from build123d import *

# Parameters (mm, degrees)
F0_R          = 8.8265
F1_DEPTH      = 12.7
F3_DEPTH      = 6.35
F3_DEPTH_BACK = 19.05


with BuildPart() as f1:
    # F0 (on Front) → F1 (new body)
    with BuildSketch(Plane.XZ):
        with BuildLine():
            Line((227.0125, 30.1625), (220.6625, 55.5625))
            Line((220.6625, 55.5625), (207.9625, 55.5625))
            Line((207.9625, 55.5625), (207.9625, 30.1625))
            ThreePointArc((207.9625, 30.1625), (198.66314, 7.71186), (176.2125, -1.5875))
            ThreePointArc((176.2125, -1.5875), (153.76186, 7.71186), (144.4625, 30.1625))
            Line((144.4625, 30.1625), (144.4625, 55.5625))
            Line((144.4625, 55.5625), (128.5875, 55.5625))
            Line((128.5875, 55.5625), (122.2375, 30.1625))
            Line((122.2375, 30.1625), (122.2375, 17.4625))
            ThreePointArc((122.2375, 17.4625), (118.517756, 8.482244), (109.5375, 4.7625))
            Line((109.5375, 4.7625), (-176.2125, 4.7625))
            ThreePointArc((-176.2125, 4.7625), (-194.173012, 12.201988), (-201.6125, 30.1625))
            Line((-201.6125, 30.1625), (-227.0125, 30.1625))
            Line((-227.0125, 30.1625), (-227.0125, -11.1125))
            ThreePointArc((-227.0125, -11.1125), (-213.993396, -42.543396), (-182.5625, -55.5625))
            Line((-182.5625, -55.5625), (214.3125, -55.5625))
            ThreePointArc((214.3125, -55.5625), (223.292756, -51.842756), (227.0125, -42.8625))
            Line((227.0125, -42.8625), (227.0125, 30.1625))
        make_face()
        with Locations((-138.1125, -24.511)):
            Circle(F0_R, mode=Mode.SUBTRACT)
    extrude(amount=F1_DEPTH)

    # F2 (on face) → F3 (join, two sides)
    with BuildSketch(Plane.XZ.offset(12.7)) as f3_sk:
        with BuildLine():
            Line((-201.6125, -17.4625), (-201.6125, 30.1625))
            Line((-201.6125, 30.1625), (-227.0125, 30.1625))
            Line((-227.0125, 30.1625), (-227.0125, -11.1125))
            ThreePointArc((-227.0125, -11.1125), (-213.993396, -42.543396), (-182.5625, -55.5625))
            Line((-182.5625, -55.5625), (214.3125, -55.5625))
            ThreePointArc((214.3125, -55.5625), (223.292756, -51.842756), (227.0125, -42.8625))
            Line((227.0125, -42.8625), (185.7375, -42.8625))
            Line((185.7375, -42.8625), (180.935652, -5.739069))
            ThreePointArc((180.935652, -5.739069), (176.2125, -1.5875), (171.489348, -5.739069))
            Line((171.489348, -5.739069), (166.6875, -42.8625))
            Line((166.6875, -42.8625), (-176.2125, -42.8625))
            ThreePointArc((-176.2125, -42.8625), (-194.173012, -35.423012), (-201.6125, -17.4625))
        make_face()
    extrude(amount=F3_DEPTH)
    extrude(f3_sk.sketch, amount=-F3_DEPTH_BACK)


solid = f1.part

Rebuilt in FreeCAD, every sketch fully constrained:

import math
import FreeCAD as App
import Part
import Sketcher
Q = App.Units.Quantity

doc = App.newDocument("Part")
params = doc.addObject("Spreadsheet::Sheet", "Params")
for row, (alias, value) in enumerate([
    ("sketch1_radius", "1 in"),
    ("sketch1_radius2", "0.5 in"),
    ("sketch1_width", "1 in"),
    ("sketch1_radius3", "1.25 in"),
    ("sketch1_radius4", "1.7500001 in"),
    ("pad1_length", "0.5 in"),
    ("sketch2_radius", "1 in"),
    ("sketch2_radius2", "0.5 in"),
    ("sketch2_width", "1 in"),
    ("sketch2_radius3", "1.7500001 in"),
    ("sketch2_width2", "13.5 in"),
    ("pad2_length", "0.25 in"),
    ("pad2_length2", "0.75 in"),
], start=1):
    params.set(f"A{row}", alias)
    params.set(f"B{row}", "=" + value)
    params.setAlias(f"B{row}", alias)

body = doc.addObject("PartDesign::Body", "Body")

# Sketch on XZ plane
sketch1 = body.newObject("Sketcher::SketchObject", "Sketch")
sketch1.AttachmentSupport = (doc.getObject("XZ_Plane"), [""])
sketch1.MapMode = "FlatFace"
sketch1.addGeometry([
    Part.LineSegment(App.Vector(227, 30, 0), App.Vector(221, 56, 0)),  # 0
    Part.LineSegment(App.Vector(221, 56, 0), App.Vector(208, 56, 0)),  # 1
    Part.LineSegment(App.Vector(208, 56, 0), App.Vector(208, 30, 0)),  # 2
    Part.ArcOfCircle(Part.Circle(App.Vector(176, 30, 0), App.Vector(0, 0, 1), 32), math.radians(-90), math.radians(0)),  # 3
    Part.ArcOfCircle(Part.Circle(App.Vector(176, 30, 0), App.Vector(0, 0, 1), 32), math.radians(-180), math.radians(-90)),  # 4
    Part.LineSegment(App.Vector(144, 30, 0), App.Vector(144, 56, 0)),  # 5
    Part.LineSegment(App.Vector(144, 56, 0), App.Vector(129, 56, 0)),  # 6
    Part.LineSegment(App.Vector(129, 56, 0), App.Vector(122, 30, 0)),  # 7
    Part.LineSegment(App.Vector(122, 30, 0), App.Vector(122, 17, 0)),  # 8
    Part.ArcOfCircle(Part.Circle(App.Vector(110, 17, 0), App.Vector(0, 0, 1), 13), math.radians(-90), math.radians(0)),  # 9
    Part.LineSegment(App.Vector(110, 5, 0), App.Vector(-176, 5, 0)),  # 10
    Part.ArcOfCircle(Part.Circle(App.Vector(-176, 30, 0), App.Vector(0, 0, 1), 25), math.radians(-180), math.radians(-90)),  # 11
    Part.LineSegment(App.Vector(-202, 30, 0), App.Vector(-227, 30, 0)),  # 12
    Part.LineSegment(App.Vector(-227, 30, 0), App.Vector(-227, -11, 0)),  # 13
    Part.ArcOfCircle(Part.Circle(App.Vector(-183, -11, 0), App.Vector(0, 0, 1), 44), math.radians(-180), math.radians(-90)),  # 14
    Part.LineSegment(App.Vector(-183, -56, 0), App.Vector(214, -56, 0)),  # 15
    Part.ArcOfCircle(Part.Circle(App.Vector(214, -43, 0), App.Vector(0, 0, 1), 13), math.radians(-90), math.radians(0)),  # 16
    Part.LineSegment(App.Vector(227, -43, 0), App.Vector(227, 30, 0)),  # 17
    Part.Circle(App.Vector(-138, -25, 0), App.Vector(0, 0, 1), 9),  # 18
], False)
sketch1.addConstraint([
    Sketcher.Constraint("Coincident", 0, 2, 1, 1),
    Sketcher.Constraint("Coincident", 1, 2, 2, 1),
    Sketcher.Constraint("Tangent", 2, 2, 3, 2),
    Sketcher.Constraint("Tangent", 3, 1, 4, 2),
    Sketcher.Constraint("Tangent", 4, 1, 5, 1),
    Sketcher.Constraint("Coincident", 5, 2, 6, 1),
    Sketcher.Constraint("Coincident", 6, 2, 7, 1),
    Sketcher.Constraint("Coincident", 7, 2, 8, 1),
    Sketcher.Constraint("Tangent", 8, 2, 9, 2),
    Sketcher.Constraint("Tangent", 9, 1, 10, 1),
    Sketcher.Constraint("Tangent", 10, 2, 11, 2),
    Sketcher.Constraint("Coincident", 11, 1, 12, 1),
    Sketcher.Constraint("Coincident", 12, 2, 13, 1),
    Sketcher.Constraint("Tangent", 13, 2, 14, 1),
    Sketcher.Constraint("Tangent", 14, 2, 15, 1),
    Sketcher.Constraint("Tangent", 15, 2, 16, 1),
    Sketcher.Constraint("Tangent", 16, 2, 17, 1),
    Sketcher.Constraint("Coincident", 17, 2, 0, 1),
    Sketcher.Constraint("Horizontal", 1),
    Sketcher.Constraint("Vertical", 2),
    Sketcher.Constraint("Vertical", 5),
    Sketcher.Constraint("Horizontal", 6),
    Sketcher.Constraint("Vertical", 8),
    Sketcher.Constraint("Horizontal", 10),
    Sketcher.Constraint("Horizontal", 12),
    Sketcher.Constraint("Vertical", 13),
    Sketcher.Constraint("Horizontal", 15),
    Sketcher.Constraint("Vertical", 17),
    Sketcher.Constraint("Equal", 3, 4),
    Sketcher.Constraint("Equal", 9, 16),
    Sketcher.Constraint("Symmetric", 3, 3, 11, 3, -2),
    Sketcher.Constraint("Symmetric", 12, 2, 17, 2, -2),
    Sketcher.Constraint("Horizontal", 1, 2, 5, 2),
    Sketcher.Constraint("Horizontal", 4, 1, 7, 2),
    Sketcher.Constraint("Horizontal", 7, 2, 11, 1),
    Sketcher.Constraint("Vertical", 4, 3, 3, 1),
    Sketcher.Constraint("Equal", 12, 2),
    Sketcher.Constraint("Equal", 1, 8),
    Sketcher.Constraint("Equal", 0, 7),
    Sketcher.Constraint("Radius", 11, Q("1 in")),
    Sketcher.Constraint("Radius", 9, Q("0.5 in")),
    Sketcher.Constraint("DistanceX", 12, 2, 12, 1, Q("1 in")),
    Sketcher.Constraint("Radius", 3, Q("1.25 in")),
    Sketcher.Constraint("Radius", 14, Q("1.7500001 in")),
    Sketcher.Constraint("Diameter", 18, Q("0.695 in")),
    Sketcher.Constraint("DistanceX", 10, 2, 10, 1, Q("11.25 in")),
    Sketcher.Constraint("DistanceX", 11, 3, 18, 3, Q("1.5 in")),
    Sketcher.Constraint("DistanceX", 6, 2, 6, 1, Q("0.625 in")),
    Sketcher.Constraint("DistanceY", 13, 2, 13, 1, Q("1.625 in")),
    Sketcher.Constraint("DistanceY", -1, 1, 3, 3, Q("1.1875 in")),
    Sketcher.Constraint("DistanceY", 18, 3, -1, 1, Q("0.965 in")),
])
sketch1.setExpression("Constraints[39]", "Params.sketch1_radius")
sketch1.setExpression("Constraints[40]", "Params.sketch1_radius2")
sketch1.setExpression("Constraints[41]", "Params.sketch1_width")
sketch1.setExpression("Constraints[42]", "Params.sketch1_radius3")
sketch1.setExpression("Constraints[43]", "Params.sketch1_radius4")
pad1 = body.newObject("PartDesign::Pad", "Pad")
pad1.Profile = sketch1
pad1.setExpression("Length", "Params.pad1_length")

# Sketch on XZ plane
sketch2 = body.newObject("Sketcher::SketchObject", "Sketch001")
sketch2.AttachmentSupport = (doc.getObject("XZ_Plane"), [""])
sketch2.MapMode = "FlatFace"
sketch2.AttachmentOffset = App.Placement(App.Vector(0, 0, 0.5 * 25.4), App.Rotation())
sketch2.addGeometry([
    Part.LineSegment(App.Vector(-201.6, -17.5, 0), App.Vector(-201.6, 30.2, 0)),  # 0
    Part.LineSegment(App.Vector(-201.6, 30.2, 0), App.Vector(-227, 30.2, 0)),  # 1
    Part.LineSegment(App.Vector(-227, 30.2, 0), App.Vector(-227, -11.1, 0)),  # 2
    Part.ArcOfCircle(Part.Circle(App.Vector(-182.6, -11.1, 0), App.Vector(0, 0, 1), 44.5), math.radians(-180), math.radians(-90)),  # 3
    Part.LineSegment(App.Vector(-182.6, -55.6, 0), App.Vector(214.3, -55.6, 0)),  # 4
    Part.ArcOfCircle(Part.Circle(App.Vector(214.3, -42.9, 0), App.Vector(0, 0, 1), 12.7), math.radians(-90), math.radians(0)),  # 5
    Part.LineSegment(App.Vector(227, -42.9, 0), App.Vector(185.7, -42.9, 0)),  # 6
    Part.LineSegment(App.Vector(185.7, -42.9, 0), App.Vector(180.9, -5.7, 0)),  # 7
    Part.ArcOfCircle(Part.Circle(App.Vector(176.2, -6.3, 0), App.Vector(0, 0, 1), 4.8), math.radians(7), math.radians(173)),  # 8
    Part.LineSegment(App.Vector(171.5, -5.7, 0), App.Vector(166.7, -42.9, 0)),  # 9
    Part.LineSegment(App.Vector(166.7, -42.9, 0), App.Vector(-176.2, -42.9, 0)),  # 10
    Part.ArcOfCircle(Part.Circle(App.Vector(-176.2, -17.5, 0), App.Vector(0, 0, 1), 25.4), math.radians(-180), math.radians(-90)),  # 11
], False)
sketch2.addConstraint([
    Sketcher.Constraint("Coincident", 0, 2, 1, 1),
    Sketcher.Constraint("Coincident", 1, 2, 2, 1),
    Sketcher.Constraint("Tangent", 2, 2, 3, 1),
    Sketcher.Constraint("Tangent", 3, 2, 4, 1),
    Sketcher.Constraint("Tangent", 4, 2, 5, 1),
    Sketcher.Constraint("Coincident", 5, 2, 6, 1),
    Sketcher.Constraint("Coincident", 6, 2, 7, 1),
    Sketcher.Constraint("Tangent", 7, 2, 8, 1),
    Sketcher.Constraint("Tangent", 8, 2, 9, 1),
    Sketcher.Constraint("Coincident", 9, 2, 10, 1),
    Sketcher.Constraint("Tangent", 10, 2, 11, 2),
    Sketcher.Constraint("Tangent", 11, 1, 0, 1),
    Sketcher.Constraint("Vertical", 0),
    Sketcher.Constraint("Horizontal", 1),
    Sketcher.Constraint("Vertical", 2),
    Sketcher.Constraint("Horizontal", 4),
    Sketcher.Constraint("Horizontal", 6),
    Sketcher.Constraint("Horizontal", 10),
    Sketcher.Constraint("Horizontal", 7, 2, 8, 2),
    Sketcher.Constraint("Horizontal", 6, 2, 9, 2),
    Sketcher.Constraint("Equal", 6, 2),
    Sketcher.Constraint("Radius", 11, Q("1 in")),
    Sketcher.Constraint("Radius", 5, Q("0.5 in")),
    Sketcher.Constraint("DistanceX", 1, 2, 1, 1, Q("1 in")),
    Sketcher.Constraint("Radius", 3, Q("1.7500001 in")),
    Sketcher.Constraint("DistanceX", 10, 2, 10, 1, Q("13.5 in")),
    Sketcher.Constraint("Radius", 8, Q("0.1875 in")),
    Sketcher.Constraint("DistanceY", 5, 3, 11, 3, Q("1 in")),
    Sketcher.Constraint("DistanceX", 8, 3, 5, 2, Q("2 in")),
    Sketcher.Constraint("DistanceX", 4, 1, 4, 2, Q("15.625 in")),
    Sketcher.Constraint("DistanceY", 8, 3, -1, 1, Q("0.25 in")),
    Sketcher.Constraint("DistanceX", 3, 3, -1, 1, Q("7.1874999 in")),
    Sketcher.Constraint("DistanceY", 3, 3, -1, 1, Q("0.4374999 in")),
])
sketch2.setExpression("Constraints[21]", "Params.sketch2_radius")
sketch2.setExpression("Constraints[22]", "Params.sketch2_radius2")
sketch2.setExpression("Constraints[23]", "Params.sketch2_width")
sketch2.setExpression("Constraints[24]", "Params.sketch2_radius3")
sketch2.setExpression("Constraints[25]", "Params.sketch2_width2")
pad2 = body.newObject("PartDesign::Pad", "Pad001")
pad2.Profile = sketch2
pad2.Type = "TwoLengths"
pad2.setExpression("Length", "Params.pad2_length")
pad2.setExpression("Length2", "Params.pad2_length2")

doc.recompute()
